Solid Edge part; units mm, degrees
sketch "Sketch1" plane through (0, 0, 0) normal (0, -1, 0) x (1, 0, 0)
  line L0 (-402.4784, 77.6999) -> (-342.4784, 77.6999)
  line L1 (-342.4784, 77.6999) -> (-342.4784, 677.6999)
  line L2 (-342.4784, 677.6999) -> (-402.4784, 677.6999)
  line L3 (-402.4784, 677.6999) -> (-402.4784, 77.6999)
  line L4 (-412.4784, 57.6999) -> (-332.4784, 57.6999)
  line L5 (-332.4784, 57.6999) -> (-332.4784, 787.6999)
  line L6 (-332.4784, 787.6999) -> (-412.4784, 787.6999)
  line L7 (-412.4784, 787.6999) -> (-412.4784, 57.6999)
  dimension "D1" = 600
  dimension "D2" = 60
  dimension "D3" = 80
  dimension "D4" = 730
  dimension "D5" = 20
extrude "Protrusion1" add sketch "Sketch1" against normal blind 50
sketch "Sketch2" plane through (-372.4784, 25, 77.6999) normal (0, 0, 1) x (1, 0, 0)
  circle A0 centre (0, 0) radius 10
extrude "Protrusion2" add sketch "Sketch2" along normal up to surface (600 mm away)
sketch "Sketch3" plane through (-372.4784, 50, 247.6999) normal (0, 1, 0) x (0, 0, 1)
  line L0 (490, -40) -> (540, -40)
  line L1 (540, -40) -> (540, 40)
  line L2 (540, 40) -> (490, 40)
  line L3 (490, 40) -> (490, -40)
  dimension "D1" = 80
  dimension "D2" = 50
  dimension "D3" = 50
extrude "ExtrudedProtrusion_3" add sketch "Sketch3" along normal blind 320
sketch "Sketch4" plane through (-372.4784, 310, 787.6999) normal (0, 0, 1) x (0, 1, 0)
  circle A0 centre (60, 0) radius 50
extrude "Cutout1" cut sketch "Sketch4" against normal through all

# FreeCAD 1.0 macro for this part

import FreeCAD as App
import Part
import Sketcher

V = App.Vector


def add_polygon(sketch, points):
    """Adds a closed chain of lines whose ends are joined by coincident constraints."""
    first, n = sketch.GeometryCount, len(points)
    for a, b in zip(points, points[1:] + points[:1]):
        sketch.addGeometry(Part.LineSegment(App.Vector(*a, 0), App.Vector(*b, 0)), False)
    for i in range(n):
        sketch.addConstraint(Sketcher.Constraint("Coincident", first + i, 2, first + (i + 1) % n, 1))

doc = App.newDocument("Part")
params = doc.addObject("Spreadsheet::Sheet", "Params")
for row, (alias, value) in enumerate([
    ("sketch1_width", "80 mm"),
    ("sketch1_width2", "60 mm"),
    ("sketch1_height", "730 mm"),
    ("sketch1_height2", "600 mm"),
    ("pad1_length", "50 mm"),
    ("sketch2_diameter", "20 mm"),
    ("pad2_length", "600 mm"),
    ("sketch3_width", "80 mm"),
    ("sketch3_height", "50 mm"),
    ("pad3_length", "320 mm"),
    ("sketch4_diameter", "100 mm"),
], start=1):
    params.set(f"A{row}", alias)
    params.set(f"B{row}", "=" + value)
    params.setAlias(f"B{row}", alias)

body = doc.addObject("PartDesign::Body", "Body")

sketch1 = doc.addObject("Sketcher::SketchObject", "Sketch")
body.addObject(sketch1)
sketch1.AttachmentSupport = (doc.XZ_Plane, [""])
sketch1.MapMode = "FlatFace"
add_polygon(sketch1, [(-412, 788), (-412, 58), (-332, 58), (-332, 788)])
add_polygon(sketch1, [(-342, 78), (-402, 78), (-402, 678), (-342, 678)])
sketch1.addConstraint(Sketcher.Constraint("Vertical", 0))
sketch1.addConstraint(Sketcher.Constraint("Horizontal", 1))
sketch1.addConstraint(Sketcher.Constraint("Vertical", 2))
sketch1.addConstraint(Sketcher.Constraint("Horizontal", 3))
sketch1.addConstraint(Sketcher.Constraint("Horizontal", 4))
sketch1.addConstraint(Sketcher.Constraint("Vertical", 5))
sketch1.addConstraint(Sketcher.Constraint("Horizontal", 6))
sketch1.addConstraint(Sketcher.Constraint("Vertical", 7))
sketch1.addConstraint(Sketcher.Constraint("DistanceX", 1, 1, 1, 2, 80.0))
sketch1.addConstraint(Sketcher.Constraint("DistanceX", 4, 2, 4, 1, 60.0))
sketch1.addConstraint(Sketcher.Constraint("DistanceY", 0, 2, 0, 1, 730.0))
sketch1.addConstraint(Sketcher.Constraint("DistanceY", 5, 1, 5, 2, 600.0))
sketch1.addConstraint(Sketcher.Constraint("DistanceX", 0, 2, 4, 2, 10.0))
sketch1.addConstraint(Sketcher.Constraint("DistanceY", 0, 2, 4, 2, 20.0))
sketch1.addConstraint(Sketcher.Constraint("DistanceX", 0, 2, -1, 1, 412.4784))
sketch1.addConstraint(Sketcher.Constraint("DistanceY", -1, 1, 0, 2, 57.7))
sketch1.setExpression("Constraints[16]", "Params.sketch1_width")
sketch1.setExpression("Constraints[17]", "Params.sketch1_width2")
sketch1.setExpression("Constraints[18]", "Params.sketch1_height")
sketch1.setExpression("Constraints[19]", "Params.sketch1_height2")
pad1 = doc.addObject("PartDesign::Pad", "Pad")
body.addObject(pad1)
pad1.Profile = sketch1
pad1.setExpression("Length", "Params.pad1_length")
pad1.Reversed = True

sketch2 = doc.addObject("Sketcher::SketchObject", "Sketch001")
body.addObject(sketch2)
sketch2.AttachmentSupport = (doc.XY_Plane, [""])
sketch2.MapMode = "FlatFace"
sketch2.AttachmentOffset = App.Placement(V(0, 0, 77.6999), App.Rotation())
sketch2.addGeometry(Part.Circle(V(-372, 25, 0), V(0, 0, 1), 10), False)
sketch2.addConstraint(Sketcher.Constraint("Diameter", 0, 20.0))
sketch2.addConstraint(Sketcher.Constraint("DistanceY", -1, 1, 0, 3, 25.0))
sketch2.addConstraint(Sketcher.Constraint("DistanceX", 0, 3, -1, 1, 372.4784))
sketch2.setExpression("Constraints[0]", "Params.sketch2_diameter")
pad2 = doc.addObject("PartDesign::Pad", "Pad001")
body.addObject(pad2)
pad2.Profile = sketch2
pad2.setExpression("Length", "Params.pad2_length")

sketch3 = doc.addObject("Sketcher::SketchObject", "Sketch002")
body.addObject(sketch3)
sketch3.AttachmentSupport = (doc.XZ_Plane, [""])
sketch3.MapMode = "FlatFace"
sketch3.AttachmentOffset = App.Placement(V(0, 0, -50), App.Rotation())
add_polygon(sketch3, [(-332, 738), (-412, 738), (-412, 788), (-332, 788)])
sketch3.addConstraint(Sketcher.Constraint("Horizontal", 0))
sketch3.addConstraint(Sketcher.Constraint("Vertical", 1))
sketch3.addConstraint(Sketcher.Constraint("Horizontal", 2))
sketch3.addConstraint(Sketcher.Constraint("Vertical", 3))
sketch3.addConstraint(Sketcher.Constraint("DistanceX", 0, 2, 0, 1, 80.0))
sketch3.addConstraint(Sketcher.Constraint("DistanceY", 1, 1, 1, 2, 50.0))
sketch3.addConstraint(Sketcher.Constraint("DistanceY", -1, 1, 0, 2, 737.7))
sketch3.addConstraint(Sketcher.Constraint("DistanceX", 0, 2, -1, 1, 412.4784))
sketch3.setExpression("Constraints[8]", "Params.sketch3_width")
sketch3.setExpression("Constraints[9]", "Params.sketch3_height")
pad3 = doc.addObject("PartDesign::Pad", "Pad002")
body.addObject(pad3)
pad3.Profile = sketch3
pad3.setExpression("Length", "Params.pad3_length")
pad3.Reversed = True

sketch4 = doc.addObject("Sketcher::SketchObject", "Sketch003")
body.addObject(sketch4)
sketch4.AttachmentSupport = (doc.XY_Plane, [""])
sketch4.MapMode = "FlatFace"
sketch4.AttachmentOffset = App.Placement(V(0, 0, 787.6999), App.Rotation())
sketch4.addGeometry(Part.Circle(V(-372, 370, 0), V(0, 0, 1), 50), False)
sketch4.addConstraint(Sketcher.Constraint("Diameter", 0, 100.0))
sketch4.addConstraint(Sketcher.Constraint("DistanceY", -1, 1, 0, 3, 370.0))
sketch4.addConstraint(Sketcher.Constraint("DistanceX", 0, 3, -1, 1, 372.4784))
sketch4.setExpression("Constraints[0]", "Params.sketch4_diameter")
pocket1 = doc.addObject("PartDesign::Pocket", "Pocket")
body.addObject(pocket1)
pocket1.Profile = sketch4
pocket1.Type = "ThroughAll"

doc.recompute()
